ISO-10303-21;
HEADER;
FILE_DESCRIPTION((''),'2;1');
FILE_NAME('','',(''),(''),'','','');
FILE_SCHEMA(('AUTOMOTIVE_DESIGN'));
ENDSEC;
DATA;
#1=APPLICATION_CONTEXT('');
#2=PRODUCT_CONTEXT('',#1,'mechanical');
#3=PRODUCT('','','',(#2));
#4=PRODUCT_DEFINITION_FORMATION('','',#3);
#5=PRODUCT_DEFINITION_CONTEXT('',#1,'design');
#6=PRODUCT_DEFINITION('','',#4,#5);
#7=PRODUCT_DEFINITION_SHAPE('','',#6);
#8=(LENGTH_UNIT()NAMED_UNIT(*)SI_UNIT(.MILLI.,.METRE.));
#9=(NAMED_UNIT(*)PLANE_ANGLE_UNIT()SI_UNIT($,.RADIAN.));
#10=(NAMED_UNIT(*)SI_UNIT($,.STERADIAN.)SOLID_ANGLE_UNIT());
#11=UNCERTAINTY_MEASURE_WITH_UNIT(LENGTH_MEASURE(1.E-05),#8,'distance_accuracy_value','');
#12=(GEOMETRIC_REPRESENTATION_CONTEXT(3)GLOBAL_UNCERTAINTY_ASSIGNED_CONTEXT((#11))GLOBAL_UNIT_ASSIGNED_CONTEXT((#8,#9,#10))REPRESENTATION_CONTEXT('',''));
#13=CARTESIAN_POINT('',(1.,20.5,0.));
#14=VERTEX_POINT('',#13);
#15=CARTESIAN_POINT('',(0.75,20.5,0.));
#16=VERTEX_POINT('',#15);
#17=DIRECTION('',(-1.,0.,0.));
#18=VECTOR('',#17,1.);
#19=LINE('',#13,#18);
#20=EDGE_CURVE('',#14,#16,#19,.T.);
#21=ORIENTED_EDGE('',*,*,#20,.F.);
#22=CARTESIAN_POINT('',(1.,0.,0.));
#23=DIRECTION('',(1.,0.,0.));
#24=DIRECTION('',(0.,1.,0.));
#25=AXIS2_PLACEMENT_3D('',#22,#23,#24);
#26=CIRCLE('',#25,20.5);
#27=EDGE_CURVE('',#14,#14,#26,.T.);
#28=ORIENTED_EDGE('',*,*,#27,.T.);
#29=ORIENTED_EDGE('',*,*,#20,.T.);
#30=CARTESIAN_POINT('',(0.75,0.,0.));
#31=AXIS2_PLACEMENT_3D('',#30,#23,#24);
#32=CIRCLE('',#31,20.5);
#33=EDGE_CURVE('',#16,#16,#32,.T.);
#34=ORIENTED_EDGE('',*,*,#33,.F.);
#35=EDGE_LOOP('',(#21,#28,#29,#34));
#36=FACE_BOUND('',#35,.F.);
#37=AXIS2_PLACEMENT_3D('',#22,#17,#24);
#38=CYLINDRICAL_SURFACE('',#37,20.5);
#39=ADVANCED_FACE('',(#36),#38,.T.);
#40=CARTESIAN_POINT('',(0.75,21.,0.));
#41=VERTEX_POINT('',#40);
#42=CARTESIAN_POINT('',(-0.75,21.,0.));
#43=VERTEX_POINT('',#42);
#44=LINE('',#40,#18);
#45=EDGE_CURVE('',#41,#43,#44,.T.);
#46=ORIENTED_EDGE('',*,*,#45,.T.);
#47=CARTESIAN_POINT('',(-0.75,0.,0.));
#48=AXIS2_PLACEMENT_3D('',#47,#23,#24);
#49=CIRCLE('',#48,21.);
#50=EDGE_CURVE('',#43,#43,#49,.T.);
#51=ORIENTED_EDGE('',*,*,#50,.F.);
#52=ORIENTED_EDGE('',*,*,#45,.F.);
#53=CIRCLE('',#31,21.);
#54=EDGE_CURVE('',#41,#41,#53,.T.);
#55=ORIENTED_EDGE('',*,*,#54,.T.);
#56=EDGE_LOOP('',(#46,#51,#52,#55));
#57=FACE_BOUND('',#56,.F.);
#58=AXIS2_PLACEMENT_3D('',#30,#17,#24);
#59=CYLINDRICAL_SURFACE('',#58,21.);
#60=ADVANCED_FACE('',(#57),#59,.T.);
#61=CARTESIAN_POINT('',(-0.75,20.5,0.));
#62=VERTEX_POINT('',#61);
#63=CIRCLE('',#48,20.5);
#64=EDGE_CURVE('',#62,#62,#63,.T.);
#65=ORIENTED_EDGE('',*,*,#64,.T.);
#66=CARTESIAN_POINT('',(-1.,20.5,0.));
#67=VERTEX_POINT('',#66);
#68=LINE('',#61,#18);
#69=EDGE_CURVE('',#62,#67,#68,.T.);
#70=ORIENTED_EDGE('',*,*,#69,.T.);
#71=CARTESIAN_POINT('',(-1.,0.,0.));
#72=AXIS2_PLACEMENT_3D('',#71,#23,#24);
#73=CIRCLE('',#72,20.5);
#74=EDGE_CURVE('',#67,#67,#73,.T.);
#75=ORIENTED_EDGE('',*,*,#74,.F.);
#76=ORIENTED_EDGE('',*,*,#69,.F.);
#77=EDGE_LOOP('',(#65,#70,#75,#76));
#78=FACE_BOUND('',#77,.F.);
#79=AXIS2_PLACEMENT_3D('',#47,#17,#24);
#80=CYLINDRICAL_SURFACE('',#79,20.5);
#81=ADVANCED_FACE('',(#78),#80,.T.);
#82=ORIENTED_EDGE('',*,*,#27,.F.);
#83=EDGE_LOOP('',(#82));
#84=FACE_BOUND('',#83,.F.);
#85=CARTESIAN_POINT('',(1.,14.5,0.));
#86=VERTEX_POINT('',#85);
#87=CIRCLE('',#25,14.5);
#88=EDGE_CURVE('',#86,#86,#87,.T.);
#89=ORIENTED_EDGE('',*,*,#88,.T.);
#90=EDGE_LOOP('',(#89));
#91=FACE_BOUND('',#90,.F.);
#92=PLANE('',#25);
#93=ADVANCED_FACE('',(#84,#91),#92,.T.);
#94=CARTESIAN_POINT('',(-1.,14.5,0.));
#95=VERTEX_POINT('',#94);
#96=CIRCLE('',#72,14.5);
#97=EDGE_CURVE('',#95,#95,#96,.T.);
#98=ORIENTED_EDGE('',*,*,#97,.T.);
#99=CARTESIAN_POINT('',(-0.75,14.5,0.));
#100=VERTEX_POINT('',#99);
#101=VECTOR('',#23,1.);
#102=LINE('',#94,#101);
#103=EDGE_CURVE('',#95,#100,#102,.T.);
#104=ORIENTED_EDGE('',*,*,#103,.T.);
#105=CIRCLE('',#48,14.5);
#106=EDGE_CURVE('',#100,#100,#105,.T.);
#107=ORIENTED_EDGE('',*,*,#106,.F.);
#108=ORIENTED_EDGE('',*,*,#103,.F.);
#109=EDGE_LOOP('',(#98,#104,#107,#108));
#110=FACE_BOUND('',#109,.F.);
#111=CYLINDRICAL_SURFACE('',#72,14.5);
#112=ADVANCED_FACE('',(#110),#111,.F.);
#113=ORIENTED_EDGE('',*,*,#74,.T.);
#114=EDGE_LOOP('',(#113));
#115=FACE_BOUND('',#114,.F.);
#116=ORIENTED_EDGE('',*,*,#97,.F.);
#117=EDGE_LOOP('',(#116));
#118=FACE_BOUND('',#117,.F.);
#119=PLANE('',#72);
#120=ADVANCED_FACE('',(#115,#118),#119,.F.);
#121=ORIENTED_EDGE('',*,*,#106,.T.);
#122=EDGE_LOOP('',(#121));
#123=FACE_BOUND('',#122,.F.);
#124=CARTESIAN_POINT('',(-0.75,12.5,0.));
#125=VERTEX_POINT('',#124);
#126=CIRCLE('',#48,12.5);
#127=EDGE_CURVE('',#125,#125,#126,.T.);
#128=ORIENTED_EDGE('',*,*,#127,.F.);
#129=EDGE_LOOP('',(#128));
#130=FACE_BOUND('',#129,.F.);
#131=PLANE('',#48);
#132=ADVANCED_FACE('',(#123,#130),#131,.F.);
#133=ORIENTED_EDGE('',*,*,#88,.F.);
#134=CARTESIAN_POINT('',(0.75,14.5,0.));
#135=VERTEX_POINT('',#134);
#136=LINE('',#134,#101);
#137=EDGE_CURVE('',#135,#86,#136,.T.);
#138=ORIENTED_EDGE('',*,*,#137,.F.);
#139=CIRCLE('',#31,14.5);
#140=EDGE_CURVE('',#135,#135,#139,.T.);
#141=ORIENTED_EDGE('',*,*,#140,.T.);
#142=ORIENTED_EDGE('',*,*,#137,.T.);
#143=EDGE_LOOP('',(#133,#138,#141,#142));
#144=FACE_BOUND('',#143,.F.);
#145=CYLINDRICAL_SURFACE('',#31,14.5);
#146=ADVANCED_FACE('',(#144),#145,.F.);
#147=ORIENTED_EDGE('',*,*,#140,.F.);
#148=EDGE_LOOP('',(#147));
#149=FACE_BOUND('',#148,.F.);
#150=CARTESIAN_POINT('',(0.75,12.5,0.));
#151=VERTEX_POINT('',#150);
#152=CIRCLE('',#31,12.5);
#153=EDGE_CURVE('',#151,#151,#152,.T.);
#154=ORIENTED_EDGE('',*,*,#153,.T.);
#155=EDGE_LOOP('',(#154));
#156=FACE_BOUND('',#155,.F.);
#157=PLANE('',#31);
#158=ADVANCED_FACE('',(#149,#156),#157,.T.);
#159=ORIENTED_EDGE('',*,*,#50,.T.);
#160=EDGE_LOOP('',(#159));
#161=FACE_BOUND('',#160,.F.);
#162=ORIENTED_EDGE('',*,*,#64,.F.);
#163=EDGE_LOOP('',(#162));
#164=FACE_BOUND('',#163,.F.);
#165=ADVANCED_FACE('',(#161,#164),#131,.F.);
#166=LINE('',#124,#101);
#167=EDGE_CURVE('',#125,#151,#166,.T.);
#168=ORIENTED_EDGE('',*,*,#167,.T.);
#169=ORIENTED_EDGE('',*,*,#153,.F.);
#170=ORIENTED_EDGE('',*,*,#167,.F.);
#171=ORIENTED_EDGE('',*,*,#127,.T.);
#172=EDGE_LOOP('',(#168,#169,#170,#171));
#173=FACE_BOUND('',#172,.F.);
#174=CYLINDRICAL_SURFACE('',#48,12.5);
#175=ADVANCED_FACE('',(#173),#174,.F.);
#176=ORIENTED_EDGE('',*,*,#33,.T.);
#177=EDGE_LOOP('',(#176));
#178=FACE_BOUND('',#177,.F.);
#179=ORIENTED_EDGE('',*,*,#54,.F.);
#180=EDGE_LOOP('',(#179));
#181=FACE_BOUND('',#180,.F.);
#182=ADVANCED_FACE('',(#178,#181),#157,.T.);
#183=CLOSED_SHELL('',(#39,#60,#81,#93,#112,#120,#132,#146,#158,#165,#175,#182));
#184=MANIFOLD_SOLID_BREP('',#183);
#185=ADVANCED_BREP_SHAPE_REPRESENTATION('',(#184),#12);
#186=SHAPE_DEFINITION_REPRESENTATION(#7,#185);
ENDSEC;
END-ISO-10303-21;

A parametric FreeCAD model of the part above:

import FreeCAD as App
import Part
import Sketcher
from FreeCAD import Vector
Q = App.Units.Quantity


def add_polygon(sketch, points):
    """Adds a closed chain of lines whose ends are joined by coincident constraints."""
    first, n = sketch.GeometryCount, len(points)
    for a, b in zip(points, points[1:] + points[:1]):
        sketch.addGeometry(Part.LineSegment(App.Vector(*a, 0), App.Vector(*b, 0)), False)
    for i in range(n):
        sketch.addConstraint(Sketcher.Constraint("Coincident", first + i, 2, first + (i + 1) % n, 1))

doc = App.newDocument("Part")
body = doc.addObject("PartDesign::Body", "Body")

sketch1 = body.newObject("Sketcher::SketchObject", "Sketch")
sketch1.AttachmentSupport = (doc.getObject("XY_Plane"), [""])
sketch1.MapMode = "FlatFace"
add_polygon(sketch1, [(-0.75, 20.5), (-1, 20.5), (-1, 14.5), (-0.75, 14.5), (-0.75, 12.5), (0.75, 12.5), (0.75, 14.5), (1, 14.5), (1, 20.5), (0.75, 20.5), (0.75, 21), (-0.75, 21)])
sketch1.addConstraint([
    Sketcher.Constraint("Horizontal", 0),
    Sketcher.Constraint("Vertical", 1),
    Sketcher.Constraint("Horizontal", 2),
    Sketcher.Constraint("Vertical", 3),
    Sketcher.Constraint("Horizontal", 4),
    Sketcher.Constraint("Vertical", 5),
    Sketcher.Constraint("Horizontal", 6),
    Sketcher.Constraint("Vertical", 7),
    Sketcher.Constraint("Horizontal", 8),
    Sketcher.Constraint("Vertical", 9),
    Sketcher.Constraint("Horizontal", 10),
    Sketcher.Constraint("Vertical", 11),
    Sketcher.Constraint("Symmetric", 2, 2, 5, 2, -2),
    Sketcher.Constraint("Symmetric", 0, 2, 7, 2, -2),
    Sketcher.Constraint("Vertical", 5, 2, 8, 2),
    Sketcher.Constraint("Vertical", 3, 2, 10, 2),
    Sketcher.Constraint("DistanceY", 1, 2, 1, 1, Q("6 mm")),
    Sketcher.Constraint("DistanceY", 3, 2, 3, 1, Q("2 mm")),
    Sketcher.Constraint("DistanceX", 4, 1, 4, 2, Q("1.5 mm")),
    Sketcher.Constraint("DistanceY", 9, 1, 9, 2, Q("0.5 mm")),
    Sketcher.Constraint("DistanceX", 0, 2, -1, 1, Q("1 mm")),
    Sketcher.Constraint("DistanceY", -1, 1, 9, 2, Q("21 mm")),
])
revolution = body.newObject("PartDesign::Revolution", "Revolution")
revolution.Profile = sketch1
revolution.ReferenceAxis = (sketch1, ["H_Axis"])
revolution.Angle = 360

doc.recompute()
